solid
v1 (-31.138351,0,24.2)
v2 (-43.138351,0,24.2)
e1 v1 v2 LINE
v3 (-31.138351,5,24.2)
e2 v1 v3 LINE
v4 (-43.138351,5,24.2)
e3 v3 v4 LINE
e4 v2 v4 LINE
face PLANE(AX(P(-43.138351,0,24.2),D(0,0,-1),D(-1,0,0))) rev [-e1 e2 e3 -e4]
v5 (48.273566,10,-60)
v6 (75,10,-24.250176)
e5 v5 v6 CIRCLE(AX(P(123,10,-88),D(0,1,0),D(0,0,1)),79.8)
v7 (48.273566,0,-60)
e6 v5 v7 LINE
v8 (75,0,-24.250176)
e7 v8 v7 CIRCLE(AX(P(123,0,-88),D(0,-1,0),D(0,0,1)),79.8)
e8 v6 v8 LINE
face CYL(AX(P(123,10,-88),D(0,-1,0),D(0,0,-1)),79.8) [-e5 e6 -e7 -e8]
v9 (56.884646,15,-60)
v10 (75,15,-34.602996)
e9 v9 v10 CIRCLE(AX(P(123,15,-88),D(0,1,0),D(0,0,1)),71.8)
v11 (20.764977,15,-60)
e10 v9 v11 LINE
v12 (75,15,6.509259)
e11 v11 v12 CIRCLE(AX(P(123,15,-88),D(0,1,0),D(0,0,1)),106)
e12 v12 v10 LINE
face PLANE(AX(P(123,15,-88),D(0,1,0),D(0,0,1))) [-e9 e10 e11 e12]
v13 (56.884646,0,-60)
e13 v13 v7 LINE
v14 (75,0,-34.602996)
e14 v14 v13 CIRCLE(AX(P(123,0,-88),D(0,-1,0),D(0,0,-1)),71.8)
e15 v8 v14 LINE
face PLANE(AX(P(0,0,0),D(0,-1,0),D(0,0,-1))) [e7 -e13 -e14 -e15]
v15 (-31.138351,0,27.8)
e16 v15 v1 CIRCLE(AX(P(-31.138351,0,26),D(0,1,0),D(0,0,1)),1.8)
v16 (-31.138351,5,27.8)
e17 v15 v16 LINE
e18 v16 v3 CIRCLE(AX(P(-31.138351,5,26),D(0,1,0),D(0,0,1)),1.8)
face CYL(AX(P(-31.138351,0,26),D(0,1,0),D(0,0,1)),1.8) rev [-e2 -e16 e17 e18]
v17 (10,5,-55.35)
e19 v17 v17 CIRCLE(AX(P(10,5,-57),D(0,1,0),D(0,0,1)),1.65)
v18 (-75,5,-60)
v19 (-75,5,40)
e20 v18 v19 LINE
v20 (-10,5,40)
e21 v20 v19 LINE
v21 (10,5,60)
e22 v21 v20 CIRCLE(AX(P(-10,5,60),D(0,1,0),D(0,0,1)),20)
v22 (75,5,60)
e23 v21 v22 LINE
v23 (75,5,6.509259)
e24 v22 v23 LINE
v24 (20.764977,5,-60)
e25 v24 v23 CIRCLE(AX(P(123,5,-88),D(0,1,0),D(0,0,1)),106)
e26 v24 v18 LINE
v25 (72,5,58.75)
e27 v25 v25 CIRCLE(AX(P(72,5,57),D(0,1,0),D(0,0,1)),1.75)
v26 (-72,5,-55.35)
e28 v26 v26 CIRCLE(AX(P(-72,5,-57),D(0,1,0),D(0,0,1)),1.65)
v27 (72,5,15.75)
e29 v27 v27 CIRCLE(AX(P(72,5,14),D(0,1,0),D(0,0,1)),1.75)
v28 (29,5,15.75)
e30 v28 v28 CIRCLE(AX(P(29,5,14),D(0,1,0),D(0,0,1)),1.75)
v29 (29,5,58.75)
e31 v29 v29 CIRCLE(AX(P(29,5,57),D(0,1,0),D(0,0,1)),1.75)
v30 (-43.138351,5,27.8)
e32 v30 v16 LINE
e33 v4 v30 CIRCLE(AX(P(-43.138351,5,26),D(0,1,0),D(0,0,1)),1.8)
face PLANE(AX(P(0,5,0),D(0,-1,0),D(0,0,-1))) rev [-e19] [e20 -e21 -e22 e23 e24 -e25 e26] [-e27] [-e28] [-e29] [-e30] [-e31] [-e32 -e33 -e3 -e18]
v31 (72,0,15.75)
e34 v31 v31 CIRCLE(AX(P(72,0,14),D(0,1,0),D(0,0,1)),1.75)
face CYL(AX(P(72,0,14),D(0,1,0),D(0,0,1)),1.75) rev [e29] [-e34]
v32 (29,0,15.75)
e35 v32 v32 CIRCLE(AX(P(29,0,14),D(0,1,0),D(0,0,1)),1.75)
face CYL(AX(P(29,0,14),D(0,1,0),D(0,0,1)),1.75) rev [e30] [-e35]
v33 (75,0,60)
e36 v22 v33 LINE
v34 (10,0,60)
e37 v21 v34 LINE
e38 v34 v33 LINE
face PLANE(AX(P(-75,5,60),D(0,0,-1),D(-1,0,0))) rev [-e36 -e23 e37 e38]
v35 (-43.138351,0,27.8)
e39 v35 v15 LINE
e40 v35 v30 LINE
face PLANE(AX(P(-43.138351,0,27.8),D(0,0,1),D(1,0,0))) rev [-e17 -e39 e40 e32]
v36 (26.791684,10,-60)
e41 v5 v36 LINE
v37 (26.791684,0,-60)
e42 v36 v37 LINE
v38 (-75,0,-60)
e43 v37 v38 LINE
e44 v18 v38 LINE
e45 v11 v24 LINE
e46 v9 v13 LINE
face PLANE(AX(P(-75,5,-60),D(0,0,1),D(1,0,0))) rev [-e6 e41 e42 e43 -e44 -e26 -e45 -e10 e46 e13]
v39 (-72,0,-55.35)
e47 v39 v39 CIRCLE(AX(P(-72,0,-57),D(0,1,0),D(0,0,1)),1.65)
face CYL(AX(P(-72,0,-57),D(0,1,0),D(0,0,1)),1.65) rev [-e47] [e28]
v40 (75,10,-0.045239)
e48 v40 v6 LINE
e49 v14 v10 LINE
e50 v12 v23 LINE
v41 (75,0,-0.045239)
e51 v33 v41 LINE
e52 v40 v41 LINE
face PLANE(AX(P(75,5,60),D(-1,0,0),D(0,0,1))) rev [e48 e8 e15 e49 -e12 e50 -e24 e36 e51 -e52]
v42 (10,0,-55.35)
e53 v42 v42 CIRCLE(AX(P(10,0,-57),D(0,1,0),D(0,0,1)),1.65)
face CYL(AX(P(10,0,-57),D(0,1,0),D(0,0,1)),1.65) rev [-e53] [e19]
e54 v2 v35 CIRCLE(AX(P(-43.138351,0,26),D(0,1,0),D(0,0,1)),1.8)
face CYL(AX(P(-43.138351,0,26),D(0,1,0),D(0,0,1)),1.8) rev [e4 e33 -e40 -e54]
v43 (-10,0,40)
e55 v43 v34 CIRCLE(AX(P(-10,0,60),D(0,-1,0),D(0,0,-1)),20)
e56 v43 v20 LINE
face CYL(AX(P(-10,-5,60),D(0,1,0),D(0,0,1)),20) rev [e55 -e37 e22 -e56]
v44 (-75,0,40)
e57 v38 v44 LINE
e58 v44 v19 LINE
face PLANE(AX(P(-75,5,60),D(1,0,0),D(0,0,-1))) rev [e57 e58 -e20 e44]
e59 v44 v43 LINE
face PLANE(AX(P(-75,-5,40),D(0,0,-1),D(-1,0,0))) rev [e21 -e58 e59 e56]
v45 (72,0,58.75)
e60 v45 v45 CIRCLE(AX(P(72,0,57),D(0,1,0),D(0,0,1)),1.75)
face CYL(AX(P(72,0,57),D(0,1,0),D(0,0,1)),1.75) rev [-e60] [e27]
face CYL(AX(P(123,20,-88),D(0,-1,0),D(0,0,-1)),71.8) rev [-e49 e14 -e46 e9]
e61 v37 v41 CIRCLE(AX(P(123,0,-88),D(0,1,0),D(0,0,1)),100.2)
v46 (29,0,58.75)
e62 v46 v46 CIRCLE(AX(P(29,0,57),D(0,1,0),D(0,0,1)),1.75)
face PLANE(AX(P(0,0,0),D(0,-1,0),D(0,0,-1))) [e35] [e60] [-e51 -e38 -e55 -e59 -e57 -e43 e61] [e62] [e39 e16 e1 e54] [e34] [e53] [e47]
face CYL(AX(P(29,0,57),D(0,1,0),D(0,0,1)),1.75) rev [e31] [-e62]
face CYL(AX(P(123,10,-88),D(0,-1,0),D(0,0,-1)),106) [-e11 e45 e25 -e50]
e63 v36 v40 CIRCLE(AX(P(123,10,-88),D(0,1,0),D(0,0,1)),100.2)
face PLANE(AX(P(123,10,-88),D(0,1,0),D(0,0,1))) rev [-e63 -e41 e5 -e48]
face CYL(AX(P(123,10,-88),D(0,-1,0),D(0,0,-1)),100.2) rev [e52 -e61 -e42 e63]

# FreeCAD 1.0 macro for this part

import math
import FreeCAD as App
import Part
import Sketcher
from FreeCAD import Vector


def add_polygon(sketch, points):
    """Adds a closed chain of lines whose ends are joined by coincident constraints."""
    first, n = sketch.GeometryCount, len(points)
    for a, b in zip(points, points[1:] + points[:1]):
        sketch.addGeometry(Part.LineSegment(App.Vector(*a, 0), App.Vector(*b, 0)), False)
    for i in range(n):
        sketch.addConstraint(Sketcher.Constraint("Coincident", first + i, 2, first + (i + 1) % n, 1))

doc = App.newDocument("Part")
params = doc.addObject("Spreadsheet::Sheet", "Params")
for row, (alias, value) in enumerate([
    ("sketch1_width", "150 mm"),
    ("sketch1_height", "120 mm"),
    ("pad1_length", "5 mm"),
    ("sketch2_diameter", "3.3 mm"),
    ("sketch2_diameter2", "3.5 mm"),
    ("sketch2_radius", "1.8 mm"),
    ("sketch2_width", "12 mm"),
    ("pocket1_length", "5 mm"),
    ("sketch3_radius", "106 mm"),
    ("sketch3_radius2", "79.8 mm"),
    ("sketch3_radius3", "100.2 mm"),
    ("pad2_length", "5 mm"),
    ("sketch4_radius", "106 mm"),
    ("pad3_length", "5 mm"),
    ("sketch5_radius", "100.2 mm"),
    ("sketch5_radius2", "79.8 mm"),
    ("pocket2_length", "5 mm"),
    ("sketch6_radius", "71.800001 mm"),
    ("pocket3_length", "20 mm"),
    ("sketch7_radius", "20 mm"),
    ("sketch7_width", "65 mm"),
    ("pocket4_length", "10 mm"),
], start=1):
    params.set(f"A{row}", alias)
    params.set(f"B{row}", "=" + value)
    params.setAlias(f"B{row}", alias)

body = doc.addObject("PartDesign::Body", "Body")

sketch1 = body.newObject("Sketcher::SketchObject", "Sketch")
sketch1.AttachmentSupport = (doc.getObject("XZ_Plane"), [""])
sketch1.MapMode = "FlatFace"
add_polygon(sketch1, [(-75, -60), (-75, 60), (75, 60), (75, -60)])
sketch1.addConstraint([
    Sketcher.Constraint("Vertical", 0),
    Sketcher.Constraint("Horizontal", 1),
    Sketcher.Constraint("Vertical", 2),
    Sketcher.Constraint("Horizontal", 3),
    Sketcher.Constraint("Symmetric", 0, 2, 2, 2, -1, 1),
    Sketcher.Constraint("DistanceX", 1, 1, 1, 2, 150.0),
    Sketcher.Constraint("DistanceY", 0, 1, 0, 2, 120.0),
])
sketch1.setExpression("Constraints[9]", "Params.sketch1_width")
sketch1.setExpression("Constraints[10]", "Params.sketch1_height")
pad1 = body.newObject("PartDesign::Pad", "Pad")
pad1.Profile = sketch1
pad1.setExpression("Length", "Params.pad1_length")
pad1.Reversed = True

sketch2 = body.newObject("Sketcher::SketchObject", "Sketch001")
sketch2.AttachmentSupport = (doc.getObject("XZ_Plane"), [""])
sketch2.MapMode = "FlatFace"
sketch2.AttachmentOffset = App.Placement(Vector(0, 0, -5), App.Rotation())
sketch2.addGeometry([
    Part.Circle(Vector(-72, -57, 0), Vector(0, 0, 1), 1.6),
    Part.Circle(Vector(10, -57, 0), Vector(0, 0, 1), 1.6),
    Part.Circle(Vector(72, 57, 0), Vector(0, 0, 1), 1.8),
    Part.Circle(Vector(29, 57, 0), Vector(0, 0, 1), 1.8),
    Part.Circle(Vector(72, 14, 0), Vector(0, 0, 1), 1.8),
    Part.Circle(Vector(29, 14, 0), Vector(0, 0, 1), 1.8),
    Part.LineSegment(Vector(-31.1, 24.2, 0), Vector(-43.1, 24.2, 0)),
    Part.ArcOfCircle(Part.Circle(Vector(-43.1, 26, 0), Vector(0, 0, 1), 1.8), math.radians(90), math.radians(270)),
    Part.LineSegment(Vector(-43.1, 27.8, 0), Vector(-31.1, 27.8, 0)),
    Part.ArcOfCircle(Part.Circle(Vector(-31.1, 26, 0), Vector(0, 0, 1), 1.8), math.radians(-90), math.radians(90)),
], False)
sketch2.addConstraint([
    Sketcher.Constraint("Tangent", 6, 2, 7, 2),
    Sketcher.Constraint("Tangent", 7, 1, 8, 1),
    Sketcher.Constraint("Tangent", 8, 2, 9, 2),
    Sketcher.Constraint("Tangent", 9, 1, 6, 1),
    Sketcher.Constraint("Horizontal", 6),
    Sketcher.Constraint("Horizontal", 8),
    Sketcher.Constraint("Equal", 0, 1),
    Sketcher.Constraint("Equal", 2, 3),
    Sketcher.Constraint("Equal", 3, 4),
    Sketcher.Constraint("Equal", 4, 5),
    Sketcher.Constraint("Symmetric", 0, 3, 2, 3, -1, 1),
    Sketcher.Constraint("Horizontal", 0, 3, 1, 3),
    Sketcher.Constraint("Horizontal", 2, 3, 3, 3),
    Sketcher.Constraint("Horizontal", 4, 3, 5, 3),
    Sketcher.Constraint("Vertical", 2, 3, 4, 3),
    Sketcher.Constraint("Vertical", 3, 3, 5, 3),
    Sketcher.Constraint("Diameter", 0, 3.3),
    Sketcher.Constraint("Diameter", 2, 3.5),
    Sketcher.Constraint("Radius", 7, 1.8),
    Sketcher.Constraint("DistanceX", 6, 2, 6, 1, 12.0),
    Sketcher.Constraint("DistanceX", 0, 3, -1, 1, 72.0),
    Sketcher.Constraint("DistanceY", 0, 3, -1, 1, 57.0),
    Sketcher.Constraint("DistanceX", -1, 1, 1, 3, 10.0),
    Sketcher.Constraint("DistanceX", -1, 1, 3, 3, 29.0),
    Sketcher.Constraint("DistanceY", -1, 1, 4, 3, 14.0),
    Sketcher.Constraint("DistanceY", -1, 1, 7, 3, 26.0),
    Sketcher.Constraint("DistanceX", 7, 3, -1, 1, 43.138351),
])
sketch2.setExpression("Constraints[16]", "Params.sketch2_diameter")
sketch2.setExpression("Constraints[17]", "Params.sketch2_diameter2")
sketch2.setExpression("Constraints[18]", "Params.sketch2_radius")
sketch2.setExpression("Constraints[19]", "Params.sketch2_width")
pocket1 = body.newObject("PartDesign::Pocket", "Pocket")
pocket1.Profile = sketch2
pocket1.setExpression("Length", "Params.pocket1_length")
pocket1.Reversed = True

sketch3 = body.newObject("Sketcher::SketchObject", "Sketch002")
sketch3.AttachmentSupport = (doc.getObject("XZ_Plane"), [""])
sketch3.MapMode = "FlatFace"
sketch3.AttachmentOffset = App.Placement(Vector(0, 0, -5), App.Rotation())
sketch3.addGeometry([
    Part.LineSegment(Vector(75, -24, 0), Vector(75, -60, 0)),
    Part.LineSegment(Vector(75, -60, 0), Vector(48, -60, 0)),
    Part.ArcOfCircle(Part.Circle(Vector(123, -88, 0), Vector(0, 0, 1), 80), math.radians(127), math.radians(159)),
    Part.LineSegment(Vector(75, 7, 0), Vector(75, 0, 0)),
    Part.ArcOfCircle(Part.Circle(Vector(123, -88, 0), Vector(0, 0, 1), 100), math.radians(119), math.radians(164)),
    Part.LineSegment(Vector(27, -60, 0), Vector(21, -60, 0)),
    Part.ArcOfCircle(Part.Circle(Vector(123, -88, 0), Vector(0, 0, 1), 106), math.radians(117), math.radians(165)),
], False)
sketch3.addConstraint([
    Sketcher.Constraint("Coincident", 0, 2, 1, 1),
    Sketcher.Constraint("Coincident", 1, 2, 2, 2),
    Sketcher.Constraint("Coincident", 2, 1, 0, 1),
    Sketcher.Constraint("Coincident", 3, 2, 4, 1),
    Sketcher.Constraint("Coincident", 4, 2, 5, 1),
    Sketcher.Constraint("Coincident", 5, 2, 6, 2),
    Sketcher.Constraint("Coincident", 6, 1, 3, 1),
    Sketcher.Constraint("Vertical", 0),
    Sketcher.Constraint("Horizontal", 1),
    Sketcher.Constraint("Vertical", 3),
    Sketcher.Constraint("Horizontal", 5),
    Sketcher.Constraint("Coincident", 4, 3, 2, 3),
    Sketcher.Constraint("Coincident", 6, 3, 2, 3),
    Sketcher.Constraint("Horizontal", 1, 2, 4, 2),
    Sketcher.Constraint("Vertical", 2, 1, 3, 2),
    Sketcher.Constraint("Radius", 6, 106.0),
    Sketcher.Constraint("Radius", 2, 79.8),
    Sketcher.Constraint("Radius", 4, 100.2),
    Sketcher.Constraint("DistanceX", -1, 1, 2, 3, 123.0),
    Sketcher.Constraint("DistanceY", 2, 3, -1, 1, 88.0),
    Sketcher.Constraint("DistanceX", -1, 1, 0, 2, 75.0),
    Sketcher.Constraint("DistanceY", 0, 2, -1, 1, 60.0),
])
sketch3.setExpression("Constraints[15]", "Params.sketch3_radius")
sketch3.setExpression("Constraints[16]", "Params.sketch3_radius2")
sketch3.setExpression("Constraints[17]", "Params.sketch3_radius3")
pad2 = body.newObject("PartDesign::Pad", "Pad001")
pad2.Profile = sketch3
pad2.setExpression("Length", "Params.pad2_length")
pad2.Reversed = True

sketch4 = body.newObject("Sketcher::SketchObject", "Sketch003")
sketch4.AttachmentSupport = (doc.getObject("XZ_Plane"), [""])
sketch4.MapMode = "FlatFace"
sketch4.AttachmentOffset = App.Placement(Vector(0, 0, -10), App.Rotation())
sketch4.addGeometry([
    Part.LineSegment(Vector(75, -60, 0), Vector(21, -60, 0)),
    Part.ArcOfCircle(Part.Circle(Vector(123, -88, 0), Vector(0, 0, 1), 106), math.radians(117), math.radians(165)),
    Part.LineSegment(Vector(75, 7, 0), Vector(75, -60, 0)),
], False)
sketch4.addConstraint([
    Sketcher.Constraint("Coincident", 0, 2, 1, 2),
    Sketcher.Constraint("Coincident", 1, 1, 2, 1),
    Sketcher.Constraint("Coincident", 2, 2, 0, 1),
    Sketcher.Constraint("Horizontal", 0),
    Sketcher.Constraint("Vertical", 2),
    Sketcher.Constraint("Radius", 1, 106.0),
    Sketcher.Constraint("DistanceX", -1, 1, 1, 3, 123.0),
    Sketcher.Constraint("DistanceY", 1, 3, -1, 1, 88.0),
    Sketcher.Constraint("DistanceY", 0, 2, -1, 1, 60.0),
    Sketcher.Constraint("DistanceX", -1, 1, 1, 1, 75.0),
])
sketch4.setExpression("Constraints[5]", "Params.sketch4_radius")
pad3 = body.newObject("PartDesign::Pad", "Pad002")
pad3.Profile = sketch4
pad3.setExpression("Length", "Params.pad3_length")
pad3.Reversed = True

sketch5 = body.newObject("Sketcher::SketchObject", "Sketch004")
sketch5.AttachmentSupport = (doc.getObject("XZ_Plane"), [""])
sketch5.MapMode = "FlatFace"
sketch5.addGeometry([
    Part.LineSegment(Vector(48, -60, 0), Vector(27, -60, 0)),
    Part.ArcOfCircle(Part.Circle(Vector(123, -88, 0), Vector(0, 0, 1), 100), math.radians(119), math.radians(164)),
    Part.LineSegment(Vector(75, 0, 0), Vector(75, -24, 0)),
    Part.ArcOfCircle(Part.Circle(Vector(123, -88, 0), Vector(0, 0, 1), 80), math.radians(127), math.radians(159)),
], False)
sketch5.addConstraint([
    Sketcher.Constraint("Coincident", 0, 2, 1, 2),
    Sketcher.Constraint("Coincident", 1, 1, 2, 1),
    Sketcher.Constraint("Coincident", 2, 2, 3, 1),
    Sketcher.Constraint("Coincident", 3, 2, 0, 1),
    Sketcher.Constraint("Horizontal", 0),
    Sketcher.Constraint("Vertical", 2),
    Sketcher.Constraint("Coincident", 3, 3, 1, 3),
    Sketcher.Constraint("Radius", 1, 100.2),
    Sketcher.Constraint("Radius", 3, 79.8),
    Sketcher.Constraint("DistanceX", -1, 1, 1, 3, 123.0),
    Sketcher.Constraint("DistanceY", 1, 3, -1, 1, 88.0),
    Sketcher.Constraint("DistanceY", 0, 2, -1, 1, 60.0),
    Sketcher.Constraint("DistanceX", -1, 1, 1, 1, 75.0),
])
sketch5.setExpression("Constraints[7]", "Params.sketch5_radius")
sketch5.setExpression("Constraints[8]", "Params.sketch5_radius2")
pocket2 = body.newObject("PartDesign::Pocket", "Pocket001")
pocket2.Profile = sketch5
pocket2.setExpression("Length", "Params.pocket2_length")

sketch6 = body.newObject("Sketcher::SketchObject", "Sketch005")
sketch6.AttachmentSupport = (doc.getObject("XZ_Plane"), [""])
sketch6.MapMode = "FlatFace"
sketch6.addGeometry([
    Part.ArcOfCircle(Part.Circle(Vector(123, -88, 0), Vector(0, 0, 1), 71.8), math.radians(157.05), math.radians(159.46)),
    Part.LineSegment(Vector(55.8, -62.8, 0), Vector(81.9, -71.4, 0)),
    Part.LineSegment(Vector(81.9, -71.4, 0), Vector(79.8, -30.6, 0)),
    Part.ArcOfCircle(Part.Circle(Vector(123, -88, 0), Vector(0, 0, 1), 71.8), math.radians(126.98), math.radians(131.95)),
    Part.ArcOfCircle(Part.Circle(Vector(123, -88, 0), Vector(0, 0, 1), 71.8), math.radians(132), math.radians(157)),
], False)
sketch6.addConstraint([
    Sketcher.Constraint("Coincident", 0, 2, 1, 1),
    Sketcher.Constraint("Coincident", 1, 2, 2, 1),
    Sketcher.Constraint("Coincident", 2, 2, 3, 1),
    Sketcher.Constraint("Tangent", 3, 2, 4, 1),
    Sketcher.Constraint("Tangent", 4, 2, 0, 1),
    Sketcher.Constraint("Coincident", 3, 3, 0, 3),
    Sketcher.Constraint("Radius", 0, 71.800001),
    Sketcher.Constraint("DistanceX", -1, 1, 0, 3, 123.000001),
    Sketcher.Constraint("DistanceY", 0, 3, -1, 1, 88.000001),
    Sketcher.Constraint("DistanceX", -1, 1, 3, 2, 75.0),
    Sketcher.Constraint("DistanceY", 4, 2, -1, 1, 60.0),
    Sketcher.Constraint("Distance", 1, 27.547968),
    Sketcher.Constraint("DistanceY", 1, 2, -1, 1, 71.44558),
    Sketcher.Constraint("DistanceX", -1, 1, 2, 2, 79.81203),
    Sketcher.Constraint("DistanceX", 1, 2, 0, 3, 41.076589),
])
sketch6.setExpression("Constraints[6]", "Params.sketch6_radius")
pocket3 = body.newObject("PartDesign::Pocket", "Pocket002")
pocket3.Profile = sketch6
pocket3.setExpression("Length", "Params.pocket3_length")

sketch7 = body.newObject("Sketcher::SketchObject", "Sketch006")
sketch7.AttachmentSupport = (doc.getObject("XZ_Plane"), [""])
sketch7.MapMode = "FlatFace"
sketch7.AttachmentOffset = App.Placement(Vector(0, 0, -5), App.Rotation())
sketch7.addGeometry([
    Part.LineSegment(Vector(-10, 40, 0), Vector(-75, 40, 0)),
    Part.ArcOfCircle(Part.Circle(Vector(-75, 60, 0), Vector(0, 0, 1), 20), math.radians(90), math.radians(270)),
    Part.LineSegment(Vector(-75, 80, 0), Vector(-10, 80, 0)),
    Part.ArcOfCircle(Part.Circle(Vector(-10, 60, 0), Vector(0, 0, 1), 20), math.radians(-90), math.radians(90)),
], False)
sketch7.addConstraint([
    Sketcher.Constraint("Tangent", 0, 2, 1, 2),
    Sketcher.Constraint("Tangent", 1, 1, 2, 1),
    Sketcher.Constraint("Tangent", 2, 2, 3, 2),
    Sketcher.Constraint("Tangent", 3, 1, 0, 1),
    Sketcher.Constraint("Horizontal", 0),
    Sketcher.Constraint("Horizontal", 2),
    Sketcher.Constraint("Radius", 1, 20.0),
    Sketcher.Constraint("DistanceX", 0, 2, 0, 1, 65.0),
    Sketcher.Constraint("DistanceX", 1, 3, -1, 1, 75.0),
    Sketcher.Constraint("DistanceY", -1, 1, 1, 3, 60.0),
])
sketch7.setExpression("Constraints[6]", "Params.sketch7_radius")
sketch7.setExpression("Constraints[7]", "Params.sketch7_width")
pocket4 = body.newObject("PartDesign::Pocket", "Pocket003")
pocket4.Profile = sketch7
pocket4.setExpression("Length", "Params.pocket4_length")
pocket4.Reversed = True

doc.recompute()
